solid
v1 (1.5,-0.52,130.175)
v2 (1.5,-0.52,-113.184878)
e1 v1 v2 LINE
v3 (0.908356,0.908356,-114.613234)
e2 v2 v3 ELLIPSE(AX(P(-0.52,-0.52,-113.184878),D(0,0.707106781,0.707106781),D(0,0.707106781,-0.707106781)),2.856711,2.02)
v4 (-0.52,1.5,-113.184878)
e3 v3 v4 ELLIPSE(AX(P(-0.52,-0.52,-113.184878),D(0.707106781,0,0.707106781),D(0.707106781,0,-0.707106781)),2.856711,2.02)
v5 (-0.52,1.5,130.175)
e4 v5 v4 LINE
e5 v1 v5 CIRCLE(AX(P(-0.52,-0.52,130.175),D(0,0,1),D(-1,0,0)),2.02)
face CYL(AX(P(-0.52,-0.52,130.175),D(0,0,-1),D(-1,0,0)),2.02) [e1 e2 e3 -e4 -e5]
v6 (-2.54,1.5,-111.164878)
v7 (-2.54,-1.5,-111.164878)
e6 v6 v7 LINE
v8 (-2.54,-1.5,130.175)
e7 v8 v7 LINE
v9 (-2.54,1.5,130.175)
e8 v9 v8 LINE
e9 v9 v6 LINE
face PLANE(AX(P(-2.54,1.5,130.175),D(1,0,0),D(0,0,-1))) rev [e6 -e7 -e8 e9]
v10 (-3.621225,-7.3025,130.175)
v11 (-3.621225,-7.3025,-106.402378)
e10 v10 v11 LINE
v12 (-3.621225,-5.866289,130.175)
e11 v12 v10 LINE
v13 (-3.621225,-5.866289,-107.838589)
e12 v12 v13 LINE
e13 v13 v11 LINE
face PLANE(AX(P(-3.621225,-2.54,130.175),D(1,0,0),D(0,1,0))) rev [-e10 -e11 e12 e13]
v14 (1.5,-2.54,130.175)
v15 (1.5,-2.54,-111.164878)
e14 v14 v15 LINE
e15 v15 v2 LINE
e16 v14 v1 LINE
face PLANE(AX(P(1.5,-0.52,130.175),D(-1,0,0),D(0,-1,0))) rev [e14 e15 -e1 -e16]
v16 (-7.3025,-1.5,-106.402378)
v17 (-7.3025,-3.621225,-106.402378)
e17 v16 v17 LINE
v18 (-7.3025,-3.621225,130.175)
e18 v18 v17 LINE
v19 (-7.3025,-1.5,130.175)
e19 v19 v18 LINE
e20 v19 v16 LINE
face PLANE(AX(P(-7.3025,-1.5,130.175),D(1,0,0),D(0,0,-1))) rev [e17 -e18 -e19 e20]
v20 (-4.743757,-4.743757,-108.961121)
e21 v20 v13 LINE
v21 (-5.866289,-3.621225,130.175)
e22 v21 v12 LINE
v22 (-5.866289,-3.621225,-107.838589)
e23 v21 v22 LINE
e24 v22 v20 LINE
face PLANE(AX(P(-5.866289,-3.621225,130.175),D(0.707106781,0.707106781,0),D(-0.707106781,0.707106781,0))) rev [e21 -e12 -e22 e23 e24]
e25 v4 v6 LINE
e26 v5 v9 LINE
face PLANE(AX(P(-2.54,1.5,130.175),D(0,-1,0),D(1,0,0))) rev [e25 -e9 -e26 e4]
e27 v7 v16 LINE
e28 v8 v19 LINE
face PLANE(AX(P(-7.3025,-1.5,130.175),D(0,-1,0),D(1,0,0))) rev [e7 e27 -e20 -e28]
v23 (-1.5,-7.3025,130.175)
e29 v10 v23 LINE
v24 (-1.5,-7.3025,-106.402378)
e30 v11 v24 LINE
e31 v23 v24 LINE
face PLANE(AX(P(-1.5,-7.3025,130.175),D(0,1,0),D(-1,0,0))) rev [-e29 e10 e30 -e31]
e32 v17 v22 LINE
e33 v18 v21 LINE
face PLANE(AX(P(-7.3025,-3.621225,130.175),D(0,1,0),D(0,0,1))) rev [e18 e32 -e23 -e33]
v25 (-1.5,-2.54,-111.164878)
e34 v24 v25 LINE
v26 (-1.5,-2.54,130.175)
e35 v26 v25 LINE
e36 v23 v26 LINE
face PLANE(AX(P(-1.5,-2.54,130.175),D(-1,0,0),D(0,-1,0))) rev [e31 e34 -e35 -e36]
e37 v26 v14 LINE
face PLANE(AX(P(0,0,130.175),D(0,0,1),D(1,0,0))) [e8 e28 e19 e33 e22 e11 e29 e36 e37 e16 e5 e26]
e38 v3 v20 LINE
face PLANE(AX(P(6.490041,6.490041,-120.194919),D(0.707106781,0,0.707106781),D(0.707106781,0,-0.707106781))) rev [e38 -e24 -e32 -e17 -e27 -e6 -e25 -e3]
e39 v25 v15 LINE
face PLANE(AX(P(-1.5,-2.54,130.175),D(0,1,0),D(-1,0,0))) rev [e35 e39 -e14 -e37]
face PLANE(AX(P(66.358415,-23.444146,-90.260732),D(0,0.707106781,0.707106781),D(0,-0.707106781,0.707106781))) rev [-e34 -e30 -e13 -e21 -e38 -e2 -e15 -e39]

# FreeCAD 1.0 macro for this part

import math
import FreeCAD as App
import Part
import Sketcher
Q = App.Units.Quantity

doc = App.newDocument("Part")
params = doc.addObject("Spreadsheet::Sheet", "Params")
for row, (alias, value) in enumerate([
    ("sketch1_width", "0.1875 in"),
    ("pad1_length", "10.25 in"),
    ("sketch2_height", "0.1875 in"),
    ("pad2_length", "10.25 in"),
    ("sketch3_width", "0.1875 in"),
    ("sketch3_length", "0.125 in"),
    ("pad3_length", "10.25 in"),
    ("sketch4_width", "5 in"),
    ("sketch4_length", "5 in"),
], start=1):
    params.set(f"A{row}", alias)
    params.set(f"B{row}", "=" + value)
    params.setAlias(f"B{row}", alias)

body = doc.addObject("PartDesign::Body", "Body")

sketch1 = body.newObject("Sketcher::SketchObject", "Sketch")
sketch1.AttachmentSupport = (doc.getObject("XY_Plane"), [""])
sketch1.MapMode = "FlatFace"
sketch1.addGeometry(Part.LineSegment(App.Vector(-7.3, -1.5, 0), App.Vector(-7.3, -3.6, 0)), False)
sketch1.addGeometry(Part.LineSegment(App.Vector(-7.3, -3.6, 0), App.Vector(-2.5, -3.6, 0)), False)
sketch1.addGeometry(Part.LineSegment(App.Vector(-2.5, -3.6, 0), App.Vector(-2.5, -1.5, 0)), False)
sketch1.addGeometry(Part.LineSegment(App.Vector(-2.5, -1.5, 0), App.Vector(-7.3, -1.5, 0)), False)
sketch1.addConstraint(Sketcher.Constraint("Coincident", 0, 2, 1, 1))
sketch1.addConstraint(Sketcher.Constraint("Coincident", 1, 2, 2, 1))
sketch1.addConstraint(Sketcher.Constraint("Coincident", 2, 2, 3, 1))
sketch1.addConstraint(Sketcher.Constraint("Coincident", 3, 2, 0, 1))
sketch1.addConstraint(Sketcher.Constraint("Vertical", 0))
sketch1.addConstraint(Sketcher.Constraint("Horizontal", 1))
sketch1.addConstraint(Sketcher.Constraint("Vertical", 2))
sketch1.addConstraint(Sketcher.Constraint("Horizontal", 3))
sketch1.addConstraint(Sketcher.Constraint("DistanceX", 1, 2, -1, 1, Q("0.1 in")))
sketch1.addConstraint(Sketcher.Constraint("DistanceX", 1, 1, 1, 2, Q("0.1875 in")))
sketch1.addConstraint(Sketcher.Constraint("DistanceY", 2, 2, -1, 1, 1.5))
sketch1.addConstraint(Sketcher.Constraint("DistanceY", 0, 2, 0, 1, 2.121225))
sketch1.setExpression("Constraints[9]", "Params.sketch1_width")
pad1 = body.newObject("PartDesign::Pad", "Pad")
pad1.Profile = sketch1
pad1.setExpression("Length", "Params.pad1_length")
pad1.Midplane = True

sketch2 = body.newObject("Sketcher::SketchObject", "Sketch001")
sketch2.AttachmentSupport = (doc.getObject("XY_Plane"), [""])
sketch2.MapMode = "FlatFace"
sketch2.addGeometry(Part.LineSegment(App.Vector(-3.6, -2.5, 0), App.Vector(-3.6, -7.3, 0)), False)
sketch2.addGeometry(Part.LineSegment(App.Vector(-3.6, -7.3, 0), App.Vector(-1.5, -7.3, 0)), False)
sketch2.addGeometry(Part.LineSegment(App.Vector(-1.5, -7.3, 0), App.Vector(-1.5, -2.5, 0)), False)
sketch2.addGeometry(Part.LineSegment(App.Vector(-1.5, -2.5, 0), App.Vector(-3.6, -2.5, 0)), False)
sketch2.addConstraint(Sketcher.Constraint("Coincident", 0, 2, 1, 1))
sketch2.addConstraint(Sketcher.Constraint("Coincident", 1, 2, 2, 1))
sketch2.addConstraint(Sketcher.Constraint("Coincident", 2, 2, 3, 1))
sketch2.addConstraint(Sketcher.Constraint("Coincident", 3, 2, 0, 1))
sketch2.addConstraint(Sketcher.Constraint("Vertical", 0))
sketch2.addConstraint(Sketcher.Constraint("Horizontal", 1))
sketch2.addConstraint(Sketcher.Constraint("Vertical", 2))
sketch2.addConstraint(Sketcher.Constraint("Horizontal", 3))
sketch2.addConstraint(Sketcher.Constraint("DistanceY", 2, 2, -1, 1, Q("0.1 in")))
sketch2.addConstraint(Sketcher.Constraint("DistanceY", 0, 2, 0, 1, Q("0.1875 in")))
sketch2.addConstraint(Sketcher.Constraint("DistanceX", 1, 2, -1, 1, 1.5))
sketch2.addConstraint(Sketcher.Constraint("DistanceX", 1, 1, 1, 2, 2.121225))
sketch2.setExpression("Constraints[9]", "Params.sketch2_height")
pad2 = body.newObject("PartDesign::Pad", "Pad001")
pad2.Profile = sketch2
pad2.setExpression("Length", "Params.pad2_length")
pad2.Midplane = True

sketch3 = body.newObject("Sketcher::SketchObject", "Sketch002")
sketch3.AttachmentSupport = (doc.getObject("XY_Plane"), [""])
sketch3.MapMode = "FlatFace"
sketch3.addGeometry(Part.LineSegment(App.Vector(-2.5, 1.5, 0), App.Vector(-2.5, -1.5, 0)), False)
sketch3.addGeometry(Part.LineSegment(App.Vector(-2.5, -1.5, 0), App.Vector(-7.3, -1.5, 0)), False)
sketch3.addGeometry(Part.LineSegment(App.Vector(-7.3, -1.5, 0), App.Vector(-7.3, -3.6, 0)), False)
sketch3.addGeometry(Part.LineSegment(App.Vector(-7.3, -3.6, 0), App.Vector(-5.9, -3.6, 0)), False)
sketch3.addGeometry(Part.LineSegment(App.Vector(-5.9, -3.6, 0), App.Vector(-3.6, -5.9, 0)), False)
sketch3.addGeometry(Part.LineSegment(App.Vector(-3.6, -5.9, 0), App.Vector(-3.6, -7.3, 0)), False)
sketch3.addGeometry(Part.LineSegment(App.Vector(-3.6, -7.3, 0), App.Vector(-1.5, -7.3, 0)), False)
sketch3.addGeometry(Part.LineSegment(App.Vector(-1.5, -7.3, 0), App.Vector(-1.5, -2.5, 0)), False)
sketch3.addGeometry(Part.LineSegment(App.Vector(-1.5, -2.5, 0), App.Vector(1.5, -2.5, 0)), False)
sketch3.addGeometry(Part.LineSegment(App.Vector(1.5, -2.5, 0), App.Vector(1.5, -0.5, 0)), False)
sketch3.addGeometry(Part.ArcOfCircle(Part.Circle(App.Vector(-0.5, -0.5, 0), App.Vector(0, 0, 1), 2), math.radians(0), math.radians(90)), False)
sketch3.addGeometry(Part.LineSegment(App.Vector(-0.5, 1.5, 0), App.Vector(-2.5, 1.5, 0)), False)
sketch3.addConstraint(Sketcher.Constraint("Coincident", 0, 2, 1, 1))
sketch3.addConstraint(Sketcher.Constraint("Coincident", 1, 2, 2, 1))
sketch3.addConstraint(Sketcher.Constraint("Coincident", 2, 2, 3, 1))
sketch3.addConstraint(Sketcher.Constraint("Coincident", 3, 2, 4, 1))
sketch3.addConstraint(Sketcher.Constraint("Coincident", 4, 2, 5, 1))
sketch3.addConstraint(Sketcher.Constraint("Coincident", 5, 2, 6, 1))
sketch3.addConstraint(Sketcher.Constraint("Coincident", 6, 2, 7, 1))
sketch3.addConstraint(Sketcher.Constraint("Coincident", 7, 2, 8, 1))
sketch3.addConstraint(Sketcher.Constraint("Coincident", 8, 2, 9, 1))
sketch3.addConstraint(Sketcher.Constraint("Tangent", 9, 2, 10, 1))
sketch3.addConstraint(Sketcher.Constraint("Tangent", 10, 2, 11, 1))
sketch3.addConstraint(Sketcher.Constraint("Coincident", 11, 2, 0, 1))
sketch3.addConstraint(Sketcher.Constraint("Vertical", 0))
sketch3.addConstraint(Sketcher.Constraint("Horizontal", 1))
sketch3.addConstraint(Sketcher.Constraint("Vertical", 2))
sketch3.addConstraint(Sketcher.Constraint("Horizontal", 3))
sketch3.addConstraint(Sketcher.Constraint("Vertical", 5))
sketch3.addConstraint(Sketcher.Constraint("Horizontal", 6))
sketch3.addConstraint(Sketcher.Constraint("Vertical", 7))
sketch3.addConstraint(Sketcher.Constraint("Horizontal", 8))
sketch3.addConstraint(Sketcher.Constraint("Vertical", 9))
sketch3.addConstraint(Sketcher.Constraint("Horizontal", 11))
sketch3.addConstraint(Sketcher.Constraint("Equal", 8, 0))
sketch3.addConstraint(Sketcher.Constraint("Equal", 6, 2))
sketch3.addConstraint(Sketcher.Constraint("Equal", 3, 5))
sketch3.addConstraint(Sketcher.Constraint("Equal", 1, 7))
sketch3.addConstraint(Sketcher.Constraint("Equal", 11, 9))
sketch3.addConstraint(Sketcher.Constraint("DistanceX", 0, 2, -1, 1, Q("0.1 in")))
sketch3.addConstraint(Sketcher.Constraint("DistanceY", 7, 2, -1, 1, Q("0.1 in")))
sketch3.addConstraint(Sketcher.Constraint("DistanceX", 1, 2, 1, 1, Q("0.1875 in")))
sketch3.addConstraint(Sketcher.Constraint("Radius", 10, 2.02))
sketch3.addConstraint(Sketcher.Constraint("Distance", 4, Q("0.125 in")))
sketch3.addConstraint(Sketcher.Constraint("DistanceX", 8, 1, 8, 2, 3.0))
sketch3.addConstraint(Sketcher.Constraint("DistanceX", 11, 2, 11, 1, 2.02))
sketch3.addConstraint(Sketcher.Constraint("DistanceX", 3, 1, 3, 2, 1.436211))
sketch3.setExpression("Constraints[29]", "Params.sketch3_width")
sketch3.setExpression("Constraints[31]", "Params.sketch3_length")
pad3 = body.newObject("PartDesign::Pad", "Pad002")
pad3.Profile = sketch3
pad3.setExpression("Length", "Params.pad3_length")
pad3.Midplane = True

sketch4 = body.newObject("Sketcher::SketchObject", "Sketch003")
sketch4.Placement = App.Placement(App.Vector(0, 0, -113.704878), App.Rotation(App.Vector(-0.707106781, 0, -0.707106781), App.Vector(0.40824829, -0.81649658, -0.40824829), App.Vector(-0.577350269, -0.577350269, 0.577350269), "ZXY"))
sketch4.addGeometry(Part.LineSegment(App.Vector(0, 0, 0), App.Vector(0, -73, 0)), False)
sketch4.addGeometry(Part.LineSegment(App.Vector(0, -73, 0), App.Vector(63, 37, 0)), False)
sketch4.addGeometry(Part.LineSegment(App.Vector(63, 37, 0), App.Vector(-63, 37, 0)), False)
sketch4.addGeometry(Part.LineSegment(App.Vector(-63, 37, 0), App.Vector(0, 0, 0)), False)
sketch4.addConstraint(Sketcher.Constraint("Coincident", 0, 2, 1, 1))
sketch4.addConstraint(Sketcher.Constraint("Coincident", 1, 2, 2, 1))
sketch4.addConstraint(Sketcher.Constraint("Coincident", 2, 2, 3, 1))
sketch4.addConstraint(Sketcher.Constraint("Coincident", 3, 2, 0, 1))
sketch4.addConstraint(Sketcher.Constraint("Vertical", 0))
sketch4.addConstraint(Sketcher.Constraint("Horizontal", 2))
sketch4.addConstraint(Sketcher.Constraint("Coincident", 3, 2, -1, 1))
sketch4.addConstraint(Sketcher.Constraint("Perpendicular", 1, 3))
sketch4.addConstraint(Sketcher.Constraint("DistanceX", 2, 2, 2, 1, Q("5 in")))
sketch4.addConstraint(Sketcher.Constraint("Distance", 1, Q("5 in")))
sketch4.addConstraint(Sketcher.Constraint("Angle", 1, Q("60 deg")))
sketch4.setExpression("Constraints[8]", "Params.sketch4_width")
sketch4.setExpression("Constraints[9]", "Params.sketch4_length")
pocket1 = body.newObject("PartDesign::Pocket", "Pocket")
pocket1.Profile = sketch4
pocket1.Type = "ThroughAll"
pocket1.Midplane = True

doc.recompute()
